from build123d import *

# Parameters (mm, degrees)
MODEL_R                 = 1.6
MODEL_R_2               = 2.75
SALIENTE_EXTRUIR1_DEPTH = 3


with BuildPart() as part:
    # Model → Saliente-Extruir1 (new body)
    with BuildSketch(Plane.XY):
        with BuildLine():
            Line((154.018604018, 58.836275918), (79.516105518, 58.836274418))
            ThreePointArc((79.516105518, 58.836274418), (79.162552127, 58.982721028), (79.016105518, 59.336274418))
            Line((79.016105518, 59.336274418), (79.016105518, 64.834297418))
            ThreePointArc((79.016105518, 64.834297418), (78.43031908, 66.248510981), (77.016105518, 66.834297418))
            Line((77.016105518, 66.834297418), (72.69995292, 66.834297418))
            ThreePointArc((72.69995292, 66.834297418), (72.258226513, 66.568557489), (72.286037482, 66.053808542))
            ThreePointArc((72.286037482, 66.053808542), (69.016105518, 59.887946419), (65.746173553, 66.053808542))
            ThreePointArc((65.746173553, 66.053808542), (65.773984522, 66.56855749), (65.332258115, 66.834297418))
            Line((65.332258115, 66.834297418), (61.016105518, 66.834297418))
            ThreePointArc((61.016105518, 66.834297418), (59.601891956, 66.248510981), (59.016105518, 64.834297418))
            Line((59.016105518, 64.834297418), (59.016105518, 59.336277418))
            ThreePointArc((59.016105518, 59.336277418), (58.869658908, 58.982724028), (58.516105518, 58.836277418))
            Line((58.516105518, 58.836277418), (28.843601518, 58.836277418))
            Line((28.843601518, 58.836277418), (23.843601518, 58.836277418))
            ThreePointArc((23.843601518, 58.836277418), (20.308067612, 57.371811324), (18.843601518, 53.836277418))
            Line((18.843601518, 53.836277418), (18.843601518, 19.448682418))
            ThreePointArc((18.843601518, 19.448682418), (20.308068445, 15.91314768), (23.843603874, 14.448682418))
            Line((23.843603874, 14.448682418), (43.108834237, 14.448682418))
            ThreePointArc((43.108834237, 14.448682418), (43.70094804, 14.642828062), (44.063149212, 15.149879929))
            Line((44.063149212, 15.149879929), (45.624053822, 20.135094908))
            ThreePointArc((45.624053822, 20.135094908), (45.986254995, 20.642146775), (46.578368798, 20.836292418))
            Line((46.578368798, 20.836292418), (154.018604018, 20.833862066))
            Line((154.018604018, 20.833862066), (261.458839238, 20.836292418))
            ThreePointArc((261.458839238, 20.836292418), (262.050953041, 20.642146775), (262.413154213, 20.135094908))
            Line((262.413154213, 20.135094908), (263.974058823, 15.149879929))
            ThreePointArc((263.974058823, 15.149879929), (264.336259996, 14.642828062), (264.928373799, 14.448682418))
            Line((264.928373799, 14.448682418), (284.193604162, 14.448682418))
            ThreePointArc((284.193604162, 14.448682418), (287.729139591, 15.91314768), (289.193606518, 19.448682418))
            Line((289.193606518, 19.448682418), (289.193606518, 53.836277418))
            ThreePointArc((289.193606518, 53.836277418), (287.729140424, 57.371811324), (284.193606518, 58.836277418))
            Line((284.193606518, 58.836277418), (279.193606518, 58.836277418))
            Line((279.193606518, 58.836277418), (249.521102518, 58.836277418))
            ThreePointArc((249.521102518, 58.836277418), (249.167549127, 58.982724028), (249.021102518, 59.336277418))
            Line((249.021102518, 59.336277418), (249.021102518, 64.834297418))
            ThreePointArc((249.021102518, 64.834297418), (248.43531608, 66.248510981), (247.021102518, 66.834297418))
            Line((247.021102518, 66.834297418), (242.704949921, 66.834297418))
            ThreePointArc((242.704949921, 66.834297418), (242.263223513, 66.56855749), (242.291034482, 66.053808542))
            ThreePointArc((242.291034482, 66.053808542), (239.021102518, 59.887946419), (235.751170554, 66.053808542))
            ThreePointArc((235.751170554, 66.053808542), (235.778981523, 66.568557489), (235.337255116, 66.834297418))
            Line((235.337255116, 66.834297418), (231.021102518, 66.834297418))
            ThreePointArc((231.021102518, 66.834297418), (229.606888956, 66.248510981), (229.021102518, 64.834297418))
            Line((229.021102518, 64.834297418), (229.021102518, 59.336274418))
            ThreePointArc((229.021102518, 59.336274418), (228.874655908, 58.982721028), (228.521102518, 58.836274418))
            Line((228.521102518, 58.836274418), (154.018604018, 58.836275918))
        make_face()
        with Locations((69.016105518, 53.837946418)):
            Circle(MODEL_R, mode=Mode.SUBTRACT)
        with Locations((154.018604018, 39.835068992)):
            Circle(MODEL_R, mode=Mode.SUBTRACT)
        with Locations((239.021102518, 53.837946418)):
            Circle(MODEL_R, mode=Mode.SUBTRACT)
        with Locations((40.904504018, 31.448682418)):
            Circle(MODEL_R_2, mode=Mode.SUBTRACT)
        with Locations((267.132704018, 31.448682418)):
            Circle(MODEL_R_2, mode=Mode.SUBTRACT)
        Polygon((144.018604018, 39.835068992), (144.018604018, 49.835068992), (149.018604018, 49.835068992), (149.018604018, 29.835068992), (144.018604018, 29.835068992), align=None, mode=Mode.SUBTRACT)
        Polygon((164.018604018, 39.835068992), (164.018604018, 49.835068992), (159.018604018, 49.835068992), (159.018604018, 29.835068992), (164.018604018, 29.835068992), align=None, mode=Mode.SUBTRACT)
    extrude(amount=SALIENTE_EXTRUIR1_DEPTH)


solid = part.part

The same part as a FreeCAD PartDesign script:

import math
import FreeCAD as App
import Part
import Sketcher
Q = App.Units.Quantity

doc = App.newDocument("Part")
body = doc.addObject("PartDesign::Body", "Body")

# Sketch on XY plane
sketch1 = body.newObject("Sketcher::SketchObject", "Sketch")
sketch1.AttachmentSupport = (doc.getObject("XY_Plane"), [""])
sketch1.MapMode = "FlatFace"
sketch1.addGeometry(Part.LineSegment(App.Vector(154.018604, 58.836276, 0), App.Vector(79.516106, 58.836274, 0)), False)
sketch1.addGeometry(Part.ArcOfCircle(Part.Circle(App.Vector(79.516106, 59.336274, 0), App.Vector(0, 0, 1), 0.5), math.radians(180), math.radians(270)), False)
sketch1.addGeometry(Part.LineSegment(App.Vector(79.016106, 59.336274, 0), App.Vector(79.016106, 64.834297, 0)), False)
sketch1.addGeometry(Part.ArcOfCircle(Part.Circle(App.Vector(77.016106, 64.834297, 0), App.Vector(0, 0, 1), 2), math.radians(0), math.radians(90)), False)
sketch1.addGeometry(Part.LineSegment(App.Vector(77.016106, 66.834297, 0), App.Vector(72.699953, 66.834297, 0)), False)
sketch1.addGeometry(Part.ArcOfCircle(Part.Circle(App.Vector(72.699953, 66.334297, 0), App.Vector(0, 0, 1), 0.5), math.radians(90), math.radians(214.123443)), False)
sketch1.addGeometry(Part.ArcOfCircle(Part.Circle(App.Vector(69.016106, 63.837946, 0), App.Vector(0, 0, 1), 3.95), math.radians(145.876557), math.radians(394.123443)), False)
sketch1.addGeometry(Part.ArcOfCircle(Part.Circle(App.Vector(65.332258, 66.334297, 0), App.Vector(0, 0, 1), 0.5), math.radians(-34.123443), math.radians(90)), False)
sketch1.addGeometry(Part.LineSegment(App.Vector(65.332258, 66.834297, 0), App.Vector(61.016106, 66.834297, 0)), False)
sketch1.addGeometry(Part.ArcOfCircle(Part.Circle(App.Vector(61.016106, 64.834297, 0), App.Vector(0, 0, 1), 2), math.radians(90), math.radians(180)), False)
sketch1.addGeometry(Part.LineSegment(App.Vector(59.016106, 64.834297, 0), App.Vector(59.016106, 59.336277, 0)), False)
sketch1.addGeometry(Part.ArcOfCircle(Part.Circle(App.Vector(58.516106, 59.336277, 0), App.Vector(0, 0, 1), 0.5), math.radians(-90), math.radians(0)), False)
sketch1.addGeometry(Part.LineSegment(App.Vector(58.516106, 58.836277, 0), App.Vector(23.843602, 58.836277, 0)), False)
sketch1.addGeometry(Part.ArcOfCircle(Part.Circle(App.Vector(23.843602, 53.836277, 0), App.Vector(0, 0, 1), 5), math.radians(90), math.radians(180)), False)
sketch1.addGeometry(Part.LineSegment(App.Vector(18.843602, 53.836277, 0), App.Vector(18.843602, 19.448682, 0)), False)
sketch1.addGeometry(Part.ArcOfCircle(Part.Circle(App.Vector(23.843602, 19.448682, 0), App.Vector(0, 0, 1), 5), math.radians(-180), math.radians(-89.999973)), False)
sketch1.addGeometry(Part.LineSegment(App.Vector(23.843604, 14.448682, 0), App.Vector(43.108834, 14.448682, 0)), False)
sketch1.addGeometry(Part.ArcOfCircle(Part.Circle(App.Vector(43.108834, 15.448682, 0), App.Vector(0, 0, 1), 1), math.radians(-90), math.radians(-17.385692)), False)
sketch1.addGeometry(Part.LineSegment(App.Vector(44.063149, 15.14988, 0), App.Vector(45.624054, 20.135095, 0)), False)
sketch1.addGeometry(Part.ArcOfCircle(Part.Circle(App.Vector(46.578369, 19.836292, 0), App.Vector(0, 0, 1), 1), math.radians(90), math.radians(162.614308)), False)
sketch1.addGeometry(Part.LineSegment(App.Vector(46.578369, 20.836292, 0), App.Vector(154.018604, 20.833862, 0)), False)
sketch1.addGeometry(Part.LineSegment(App.Vector(154.018604, 20.833862, 0), App.Vector(261.458839, 20.836292, 0)), False)
sketch1.addGeometry(Part.ArcOfCircle(Part.Circle(App.Vector(261.458839, 19.836292, 0), App.Vector(0, 0, 1), 1), math.radians(17.385692), math.radians(90)), False)
sketch1.addGeometry(Part.LineSegment(App.Vector(262.413154, 20.135095, 0), App.Vector(263.974059, 15.14988, 0)), False)
sketch1.addGeometry(Part.ArcOfCircle(Part.Circle(App.Vector(264.928374, 15.448682, 0), App.Vector(0, 0, 1), 1), math.radians(-162.614308), math.radians(-90)), False)
sketch1.addGeometry(Part.LineSegment(App.Vector(264.928374, 14.448682, 0), App.Vector(284.193604, 14.448682, 0)), False)
sketch1.addGeometry(Part.ArcOfCircle(Part.Circle(App.Vector(284.193607, 19.448682, 0), App.Vector(0, 0, 1), 5), math.radians(-90.000027), math.radians(0)), False)
sketch1.addGeometry(Part.LineSegment(App.Vector(289.193607, 19.448682, 0), App.Vector(289.193607, 53.836277, 0)), False)
sketch1.addGeometry(Part.ArcOfCircle(Part.Circle(App.Vector(284.193607, 53.836277, 0), App.Vector(0, 0, 1), 5), math.radians(0), math.radians(90)), False)
sketch1.addGeometry(Part.LineSegment(App.Vector(284.193607, 58.836277, 0), App.Vector(249.521103, 58.836277, 0)), False)
sketch1.addGeometry(Part.ArcOfCircle(Part.Circle(App.Vector(249.521103, 59.336277, 0), App.Vector(0, 0, 1), 0.5), math.radians(180), math.radians(270)), False)
sketch1.addGeometry(Part.LineSegment(App.Vector(249.021103, 59.336277, 0), App.Vector(249.021103, 64.834297, 0)), False)
sketch1.addGeometry(Part.ArcOfCircle(Part.Circle(App.Vector(247.021103, 64.834297, 0), App.Vector(0, 0, 1), 2), math.radians(0), math.radians(90)), False)
sketch1.addGeometry(Part.LineSegment(App.Vector(247.021103, 66.834297, 0), App.Vector(242.70495, 66.834297, 0)), False)
sketch1.addGeometry(Part.ArcOfCircle(Part.Circle(App.Vector(242.70495, 66.334297, 0), App.Vector(0, 0, 1), 0.5), math.radians(90), math.radians(214.123443)), False)
sketch1.addGeometry(Part.ArcOfCircle(Part.Circle(App.Vector(239.021103, 63.837946, 0), App.Vector(0, 0, 1), 3.95), math.radians(145.876557), math.radians(394.123443)), False)
sketch1.addGeometry(Part.ArcOfCircle(Part.Circle(App.Vector(235.337255, 66.334297, 0), App.Vector(0, 0, 1), 0.5), math.radians(-34.123443), math.radians(90)), False)
sketch1.addGeometry(Part.LineSegment(App.Vector(235.337255, 66.834297, 0), App.Vector(231.021103, 66.834297, 0)), False)
sketch1.addGeometry(Part.ArcOfCircle(Part.Circle(App.Vector(231.021103, 64.834297, 0), App.Vector(0, 0, 1), 2), math.radians(90), math.radians(180)), False)
sketch1.addGeometry(Part.LineSegment(App.Vector(229.021103, 64.834297, 0), App.Vector(229.021103, 59.336274, 0)), False)
sketch1.addGeometry(Part.ArcOfCircle(Part.Circle(App.Vector(228.521103, 59.336274, 0), App.Vector(0, 0, 1), 0.5), math.radians(-90), math.radians(0)), False)
sketch1.addGeometry(Part.LineSegment(App.Vector(228.521103, 58.836274, 0), App.Vector(154.018604, 58.836276, 0)), False)
sketch1.addGeometry(Part.Circle(App.Vector(40.904504, 31.448682, 0), App.Vector(0, 0, 1), 2.75), False)
sketch1.addGeometry(Part.LineSegment(App.Vector(144.018604, 29.835069, 0), App.Vector(144.018604, 49.835069, 0)), False)
sketch1.addGeometry(Part.LineSegment(App.Vector(144.018604, 49.835069, 0), App.Vector(149.018604, 49.835069, 0)), False)
sketch1.addGeometry(Part.LineSegment(App.Vector(149.018604, 49.835069, 0), App.Vector(149.018604, 29.835069, 0)), False)
sketch1.addGeometry(Part.LineSegment(App.Vector(149.018604, 29.835069, 0), App.Vector(144.018604, 29.835069, 0)), False)
sketch1.addGeometry(Part.Circle(App.Vector(154.018604, 39.835069, 0), App.Vector(0, 0, 1), 1.6), False)
sketch1.addGeometry(Part.Circle(App.Vector(267.132704, 31.448682, 0), App.Vector(0, 0, 1), 2.75), False)
sketch1.addGeometry(Part.LineSegment(App.Vector(164.018604, 49.835069, 0), App.Vector(164.018604, 29.835069, 0)), False)
sketch1.addGeometry(Part.LineSegment(App.Vector(164.018604, 29.835069, 0), App.Vector(159.018604, 29.835069, 0)), False)
sketch1.addGeometry(Part.LineSegment(App.Vector(159.018604, 29.835069, 0), App.Vector(159.018604, 49.835069, 0)), False)
sketch1.addGeometry(Part.LineSegment(App.Vector(159.018604, 49.835069, 0), App.Vector(164.018604, 49.835069, 0)), False)
sketch1.addGeometry(Part.Circle(App.Vector(69.016106, 53.837946, 0), App.Vector(0, 0, 1), 1.6), False)
sketch1.addGeometry(Part.Circle(App.Vector(239.021103, 53.837946, 0), App.Vector(0, 0, 1), 1.6), False)
sketch1.addConstraint(Sketcher.Constraint("Coincident", 0, 2, 1, 2))
sketch1.addConstraint(Sketcher.Constraint("Coincident", 1, 1, 2, 1))
sketch1.addConstraint(Sketcher.Constraint("Coincident", 2, 2, 3, 1))
sketch1.addConstraint(Sketcher.Constraint("Coincident", 3, 2, 4, 1))
sketch1.addConstraint(Sketcher.Constraint("Coincident", 4, 2, 5, 1))
sketch1.addConstraint(Sketcher.Constraint("Coincident", 5, 2, 6, 2))
sketch1.addConstraint(Sketcher.Constraint("Coincident", 6, 1, 7, 1))
sketch1.addConstraint(Sketcher.Constraint("Coincident", 7, 2, 8, 1))
sketch1.addConstraint(Sketcher.Constraint("Coincident", 8, 2, 9, 1))
sketch1.addConstraint(Sketcher.Constraint("Coincident", 9, 2, 10, 1))
sketch1.addConstraint(Sketcher.Constraint("Coincident", 10, 2, 11, 2))
sketch1.addConstraint(Sketcher.Constraint("Coincident", 11, 1, 12, 1))
sketch1.addConstraint(Sketcher.Constraint("Coincident", 12, 2, 13, 1))
sketch1.addConstraint(Sketcher.Constraint("Coincident", 13, 2, 14, 1))
sketch1.addConstraint(Sketcher.Constraint("Coincident", 14, 2, 15, 1))
sketch1.addConstraint(Sketcher.Constraint("Coincident", 15, 2, 16, 1))
sketch1.addConstraint(Sketcher.Constraint("Coincident", 16, 2, 17, 1))
sketch1.addConstraint(Sketcher.Constraint("Coincident", 17, 2, 18, 1))
sketch1.addConstraint(Sketcher.Constraint("Coincident", 18, 2, 19, 2))
sketch1.addConstraint(Sketcher.Constraint("Coincident", 19, 1, 20, 1))
sketch1.addConstraint(Sketcher.Constraint("Coincident", 20, 2, 21, 1))
sketch1.addConstraint(Sketcher.Constraint("Coincident", 21, 2, 22, 2))
sketch1.addConstraint(Sketcher.Constraint("Coincident", 22, 1, 23, 1))
sketch1.addConstraint(Sketcher.Constraint("Coincident", 23, 2, 24, 1))
sketch1.addConstraint(Sketcher.Constraint("Coincident", 24, 2, 25, 1))
sketch1.addConstraint(Sketcher.Constraint("Coincident", 25, 2, 26, 1))
sketch1.addConstraint(Sketcher.Constraint("Coincident", 26, 2, 27, 1))
sketch1.addConstraint(Sketcher.Constraint("Coincident", 27, 2, 28, 1))
sketch1.addConstraint(Sketcher.Constraint("Coincident", 28, 2, 29, 1))
sketch1.addConstraint(Sketcher.Constraint("Coincident", 29, 2, 30, 2))
sketch1.addConstraint(Sketcher.Constraint("Coincident", 30, 1, 31, 1))
sketch1.addConstraint(Sketcher.Constraint("Coincident", 31, 2, 32, 1))
sketch1.addConstraint(Sketcher.Constraint("Coincident", 32, 2, 33, 1))
sketch1.addConstraint(Sketcher.Constraint("Coincident", 33, 2, 34, 1))
sketch1.addConstraint(Sketcher.Constraint("Coincident", 34, 2, 35, 2))
sketch1.addConstraint(Sketcher.Constraint("Coincident", 35, 1, 36, 1))
sketch1.addConstraint(Sketcher.Constraint("Coincident", 36, 2, 37, 1))
sketch1.addConstraint(Sketcher.Constraint("Coincident", 37, 2, 38, 1))
sketch1.addConstraint(Sketcher.Constraint("Coincident", 38, 2, 39, 1))
sketch1.addConstraint(Sketcher.Constraint("Coincident", 39, 2, 40, 2))
sketch1.addConstraint(Sketcher.Constraint("Coincident", 40, 1, 41, 1))
sketch1.addConstraint(Sketcher.Constraint("Coincident", 41, 2, 0, 1))
sketch1.addConstraint(Sketcher.Constraint("Coincident", 43, 2, 44, 1))
sketch1.addConstraint(Sketcher.Constraint("Coincident", 44, 2, 45, 1))
sketch1.addConstraint(Sketcher.Constraint("Coincident", 45, 2, 46, 1))
sketch1.addConstraint(Sketcher.Constraint("Coincident", 46, 2, 43, 1))
sketch1.addConstraint(Sketcher.Constraint("Coincident", 49, 2, 50, 1))
sketch1.addConstraint(Sketcher.Constraint("Coincident", 50, 2, 51, 1))
sketch1.addConstraint(Sketcher.Constraint("Coincident", 51, 2, 52, 1))
sketch1.addConstraint(Sketcher.Constraint("Coincident", 52, 2, 49, 1))
sketch1.addConstraint(Sketcher.Constraint("Horizontal", 0))
sketch1.addConstraint(Sketcher.Constraint("Vertical", 2))
sketch1.addConstraint(Sketcher.Constraint("Horizontal", 4))
sketch1.addConstraint(Sketcher.Constraint("Horizontal", 8))
sketch1.addConstraint(Sketcher.Constraint("Vertical", 10))
sketch1.addConstraint(Sketcher.Constraint("Horizontal", 12))
sketch1.addConstraint(Sketcher.Constraint("Vertical", 14))
sketch1.addConstraint(Sketcher.Constraint("Horizontal", 16))
sketch1.addConstraint(Sketcher.Constraint("Horizontal", 25))
sketch1.addConstraint(Sketcher.Constraint("Vertical", 27))
sketch1.addConstraint(Sketcher.Constraint("Horizontal", 29))
sketch1.addConstraint(Sketcher.Constraint("Vertical", 31))
sketch1.addConstraint(Sketcher.Constraint("Horizontal", 33))
sketch1.addConstraint(Sketcher.Constraint("Horizontal", 37))
sketch1.addConstraint(Sketcher.Constraint("Vertical", 39))
sketch1.addConstraint(Sketcher.Constraint("Horizontal", 41))
sketch1.addConstraint(Sketcher.Constraint("Vertical", 43))
sketch1.addConstraint(Sketcher.Constraint("Horizontal", 44))
sketch1.addConstraint(Sketcher.Constraint("Vertical", 45))
sketch1.addConstraint(Sketcher.Constraint("Horizontal", 46))
sketch1.addConstraint(Sketcher.Constraint("Vertical", 49))
sketch1.addConstraint(Sketcher.Constraint("Horizontal", 50))
sketch1.addConstraint(Sketcher.Constraint("Vertical", 51))
sketch1.addConstraint(Sketcher.Constraint("Horizontal", 52))
sketch1.addConstraint(Sketcher.Constraint("Radius", 3, Q("2 mm")))
sketch1.addConstraint(Sketcher.Constraint("Radius", 9, Q("2 mm")))
sketch1.addConstraint(Sketcher.Constraint("Radius", 13, Q("5 mm")))
sketch1.addConstraint(Sketcher.Constraint("Radius", 15, Q("5 mm")))
sketch1.addConstraint(Sketcher.Constraint("Radius", 17, Q("1 mm")))
sketch1.addConstraint(Sketcher.Constraint("Radius", 19, Q("1 mm")))
sketch1.addConstraint(Sketcher.Constraint("Radius", 22, Q("1 mm")))
sketch1.addConstraint(Sketcher.Constraint("Radius", 24, Q("1 mm")))
sketch1.addConstraint(Sketcher.Constraint("Radius", 26, Q("5 mm")))
sketch1.addConstraint(Sketcher.Constraint("Radius", 28, Q("5 mm")))
sketch1.addConstraint(Sketcher.Constraint("Radius", 32, Q("2 mm")))
sketch1.addConstraint(Sketcher.Constraint("Radius", 38, Q("2 mm")))
sketch1.addConstraint(Sketcher.Constraint("Diameter", 42, Q("5.5 mm")))
sketch1.addConstraint(Sketcher.Constraint("Diameter", 47, Q("3.2 mm")))
sketch1.addConstraint(Sketcher.Constraint("Diameter", 48, Q("5.5 mm")))
sketch1.addConstraint(Sketcher.Constraint("Diameter", 53, Q("3.2 mm")))
sketch1.addConstraint(Sketcher.Constraint("Diameter", 54, Q("3.2 mm")))
sketch1.addConstraint(Sketcher.Constraint("Radius", 1, Q("0.5 mm")))
sketch1.addConstraint(Sketcher.Constraint("Radius", 5, Q("0.5 mm")))
sketch1.addConstraint(Sketcher.Constraint("Radius", 7, Q("0.5 mm")))
sketch1.addConstraint(Sketcher.Constraint("Radius", 11, Q("0.5 mm")))
sketch1.addConstraint(Sketcher.Constraint("Radius", 30, Q("0.5 mm")))
sketch1.addConstraint(Sketcher.Constraint("Radius", 34, Q("0.5 mm")))
sketch1.addConstraint(Sketcher.Constraint("Radius", 36, Q("0.5 mm")))
sketch1.addConstraint(Sketcher.Constraint("Radius", 40, Q("0.5 mm")))
sketch1.addConstraint(Sketcher.Constraint("DistanceX", 44, 1, 44, 2, Q("5 mm")))
sketch1.addConstraint(Sketcher.Constraint("DistanceX", 50, 2, 50, 1, Q("5 mm")))
sketch1.addConstraint(Sketcher.Constraint("DistanceY", 43, 1, 43, 2, Q("20 mm")))
sketch1.addConstraint(Sketcher.Constraint("DistanceY", 49, 2, 49, 1, Q("20 mm")))
sketch1.addConstraint(Sketcher.Constraint("Radius", 6, Q("3.95 mm")))
sketch1.addConstraint(Sketcher.Constraint("Radius", 35, Q("3.95 mm")))
sketch1.addConstraint(Sketcher.Constraint("DistanceX", 0, 2, 0, 1, Q("74.502498 mm")))
sketch1.addConstraint(Sketcher.Constraint("DistanceX", 41, 2, 41, 1, Q("74.502499 mm")))
sketch1.addConstraint(Sketcher.Constraint("DistanceX", 16, 1, 16, 2, Q("19.26523 mm")))
sketch1.addConstraint(Sketcher.Constraint("DistanceX", 25, 1, 25, 2, Q("19.26523 mm")))
sketch1.addConstraint(Sketcher.Constraint("DistanceY", 10, 2, 10, 1, Q("5.49802 mm")))
sketch1.addConstraint(Sketcher.Constraint("DistanceY", 31, 1, 31, 2, Q("5.49802 mm")))
sketch1.addConstraint(Sketcher.Constraint("DistanceX", -1, 1, 13, 3, Q("23.843602 mm")))
sketch1.addConstraint(Sketcher.Constraint("DistanceX", -1, 1, 12, 2, Q("23.843602 mm")))
sketch1.addConstraint(Sketcher.Constraint("DistanceX", 4, 2, 4, 1, Q("4.316153 mm")))
sketch1.addConstraint(Sketcher.Constraint("DistanceX", 8, 2, 8, 1, Q("4.316153 mm")))
sketch1.addConstraint(Sketcher.Constraint("DistanceX", 12, 2, 12, 1, Q("34.672504 mm")))
sketch1.addConstraint(Sketcher.Constraint("DistanceX", 29, 2, 29, 1, Q("34.672504 mm")))
sketch1.addConstraint(Sketcher.Constraint("DistanceX", 33, 2, 33, 1, Q("4.316153 mm")))
sketch1.addConstraint(Sketcher.Constraint("DistanceX", 37, 2, 37, 1, Q("4.316153 mm")))
sketch1.addConstraint(Sketcher.Constraint("DistanceY", 2, 1, 2, 2, Q("5.498023 mm")))
sketch1.addConstraint(Sketcher.Constraint("DistanceY", 14, 2, 14, 1, Q("34.387595 mm")))
sketch1.addConstraint(Sketcher.Constraint("DistanceY", 27, 1, 27, 2, Q("34.387595 mm")))
sketch1.addConstraint(Sketcher.Constraint("DistanceY", 39, 2, 39, 1, Q("5.498023 mm")))
sketch1.addConstraint(Sketcher.Constraint("DistanceX", -1, 1, 7, 3, Q("65.332258 mm")))
sketch1.addConstraint(Sketcher.Constraint("DistanceX", -1, 1, 19, 3, Q("46.578369 mm")))
sketch1.addConstraint(Sketcher.Constraint("DistanceX", -1, 1, 22, 3, Q("261.458839 mm")))
sketch1.addConstraint(Sketcher.Constraint("DistanceX", -1, 1, 34, 3, Q("242.70495 mm")))
sketch1.addConstraint(Sketcher.Constraint("DistanceY", -1, 1, 47, 3, Q("39.835069 mm")))
sketch1.addConstraint(Sketcher.Constraint("DistanceY", -1, 1, 5, 2, Q("66.053809 mm")))
sketch1.addConstraint(Sketcher.Constraint("DistanceY", -1, 1, 6, 1, Q("66.053809 mm")))
sketch1.addConstraint(Sketcher.Constraint("DistanceX", -1, 1, 7, 2, Q("65.332258 mm")))
sketch1.addConstraint(Sketcher.Constraint("DistanceX", -1, 1, 17, 2, Q("44.063149 mm")))
sketch1.addConstraint(Sketcher.Constraint("DistanceY", -1, 1, 17, 2, Q("15.14988 mm")))
sketch1.addConstraint(Sketcher.Constraint("DistanceX", -1, 1, 19, 1, Q("46.578369 mm")))
sketch1.addConstraint(Sketcher.Constraint("DistanceX", -1, 1, 21, 2, Q("261.458839 mm")))
sketch1.addConstraint(Sketcher.Constraint("DistanceX", -1, 1, 23, 2, Q("263.974059 mm")))
sketch1.addConstraint(Sketcher.Constraint("DistanceY", -1, 1, 23, 2, Q("15.14988 mm")))
sketch1.addConstraint(Sketcher.Constraint("DistanceX", -1, 1, 33, 2, Q("242.70495 mm")))
sketch1.addConstraint(Sketcher.Constraint("DistanceY", -1, 1, 34, 2, Q("66.053809 mm")))
sketch1.addConstraint(Sketcher.Constraint("DistanceX", -1, 1, 35, 1, Q("235.751171 mm")))
sketch1.addConstraint(Sketcher.Constraint("DistanceY", -1, 1, 35, 1, Q("66.053809 mm")))
sketch1.addConstraint(Sketcher.Constraint("DistanceY", -1, 1, 43, 2, Q("49.835069 mm")))
sketch1.addConstraint(Sketcher.Constraint("DistanceY", -1, 1, 49, 2, Q("29.835069 mm")))
sketch1.addConstraint(Sketcher.Constraint("Distance", 18, Q("5.223867 mm")))
sketch1.addConstraint(Sketcher.Constraint("Distance", 20, Q("107.440235 mm")))
sketch1.addConstraint(Sketcher.Constraint("Distance", 23, Q("5.223867 mm")))
sketch1.addConstraint(Sketcher.Constraint("DistanceX", -1, 1, 1, 3, Q("79.516106 mm")))
sketch1.addConstraint(Sketcher.Constraint("DistanceY", -1, 1, 1, 3, Q("59.336274 mm")))
sketch1.addConstraint(Sketcher.Constraint("DistanceY", -1, 1, 3, 3, Q("64.834297 mm")))
sketch1.addConstraint(Sketcher.Constraint("DistanceX", -1, 1, 5, 3, Q("72.699953 mm")))
sketch1.addConstraint(Sketcher.Constraint("DistanceX", -1, 1, 6, 3, Q("69.016106 mm")))
sketch1.addConstraint(Sketcher.Constraint("DistanceX", -1, 1, 9, 3, Q("61.016106 mm")))
sketch1.addConstraint(Sketcher.Constraint("DistanceY", -1, 1, 11, 3, Q("59.336277 mm")))
sketch1.addConstraint(Sketcher.Constraint("DistanceY", -1, 1, 15, 3, Q("19.448682 mm")))
sketch1.addConstraint(Sketcher.Constraint("DistanceY", -1, 1, 19, 3, Q("19.836292 mm")))
sketch1.addConstraint(Sketcher.Constraint("DistanceY", -1, 1, 22, 3, Q("19.836292 mm")))
sketch1.addConstraint(Sketcher.Constraint("DistanceX", -1, 1, 24, 3, Q("264.928374 mm")))
sketch1.addConstraint(Sketcher.Constraint("DistanceX", -1, 1, 26, 3, Q("284.193607 mm")))
sketch1.addConstraint(Sketcher.Constraint("DistanceY", -1, 1, 28, 3, Q("53.836277 mm")))
sketch1.addConstraint(Sketcher.Constraint("DistanceX", -1, 1, 30, 3, Q("249.521103 mm")))
sketch1.addConstraint(Sketcher.Constraint("DistanceY", -1, 1, 32, 3, Q("64.834297 mm")))
sketch1.addConstraint(Sketcher.Constraint("DistanceX", -1, 1, 36, 3, Q("235.337255 mm")))
sketch1.addConstraint(Sketcher.Constraint("DistanceX", -1, 1, 38, 3, Q("231.021103 mm")))
sketch1.addConstraint(Sketcher.Constraint("DistanceX", -1, 1, 42, 3, Q("40.904504 mm")))
sketch1.addConstraint(Sketcher.Constraint("DistanceY", -1, 1, 42, 3, Q("31.448682 mm")))
sketch1.addConstraint(Sketcher.Constraint("DistanceX", -1, 1, 47, 3, Q("154.018604 mm")))
sketch1.addConstraint(Sketcher.Constraint("DistanceX", -1, 1, 48, 3, Q("267.132704 mm")))
sketch1.addConstraint(Sketcher.Constraint("DistanceY", -1, 1, 48, 3, Q("31.448682 mm")))
sketch1.addConstraint(Sketcher.Constraint("DistanceX", -1, 1, 53, 3, Q("69.016106 mm")))
sketch1.addConstraint(Sketcher.Constraint("DistanceY", -1, 1, 53, 3, Q("53.837946 mm")))
sketch1.addConstraint(Sketcher.Constraint("DistanceX", -1, 1, 54, 3, Q("239.021103 mm")))
sketch1.addConstraint(Sketcher.Constraint("DistanceY", -1, 1, 54, 3, Q("53.837946 mm")))
sketch1.addConstraint(Sketcher.Constraint("DistanceX", -1, 1, 0, 2, Q("79.516106 mm")))
sketch1.addConstraint(Sketcher.Constraint("DistanceY", -1, 1, 1, 1, Q("59.336274 mm")))
sketch1.addConstraint(Sketcher.Constraint("DistanceX", -1, 1, 3, 2, Q("77.016106 mm")))
sketch1.addConstraint(Sketcher.Constraint("DistanceY", -1, 1, 9, 2, Q("64.834297 mm")))
sketch1.addConstraint(Sketcher.Constraint("DistanceY", -1, 1, 13, 2, Q("53.836277 mm")))
sketch1.addConstraint(Sketcher.Constraint("DistanceX", -1, 1, 15, 2, Q("23.843604 mm")))
sketch1.addConstraint(Sketcher.Constraint("DistanceY", -1, 1, 20, 2, Q("20.833862 mm")))
sketch1.addConstraint(Sketcher.Constraint("DistanceX", -1, 1, 24, 2, Q("264.928374 mm")))
sketch1.addConstraint(Sketcher.Constraint("DistanceY", -1, 1, 26, 2, Q("19.448682 mm")))
sketch1.addConstraint(Sketcher.Constraint("DistanceX", -1, 1, 28, 2, Q("284.193607 mm")))
sketch1.addConstraint(Sketcher.Constraint("DistanceY", -1, 1, 30, 1, Q("59.336277 mm")))
sketch1.addConstraint(Sketcher.Constraint("DistanceX", -1, 1, 36, 2, Q("235.337255 mm")))
sketch1.addConstraint(Sketcher.Constraint("DistanceY", -1, 1, 38, 2, Q("64.834297 mm")))
sketch1.addConstraint(Sketcher.Constraint("DistanceX", -1, 1, 43, 2, Q("144.018604 mm")))
sketch1.addConstraint(Sketcher.Constraint("DistanceX", -1, 1, 49, 2, Q("164.018604 mm")))
pad1 = body.newObject("PartDesign::Pad", "Pad")
pad1.Profile = sketch1
pad1.Length = 3

doc.recompute()
